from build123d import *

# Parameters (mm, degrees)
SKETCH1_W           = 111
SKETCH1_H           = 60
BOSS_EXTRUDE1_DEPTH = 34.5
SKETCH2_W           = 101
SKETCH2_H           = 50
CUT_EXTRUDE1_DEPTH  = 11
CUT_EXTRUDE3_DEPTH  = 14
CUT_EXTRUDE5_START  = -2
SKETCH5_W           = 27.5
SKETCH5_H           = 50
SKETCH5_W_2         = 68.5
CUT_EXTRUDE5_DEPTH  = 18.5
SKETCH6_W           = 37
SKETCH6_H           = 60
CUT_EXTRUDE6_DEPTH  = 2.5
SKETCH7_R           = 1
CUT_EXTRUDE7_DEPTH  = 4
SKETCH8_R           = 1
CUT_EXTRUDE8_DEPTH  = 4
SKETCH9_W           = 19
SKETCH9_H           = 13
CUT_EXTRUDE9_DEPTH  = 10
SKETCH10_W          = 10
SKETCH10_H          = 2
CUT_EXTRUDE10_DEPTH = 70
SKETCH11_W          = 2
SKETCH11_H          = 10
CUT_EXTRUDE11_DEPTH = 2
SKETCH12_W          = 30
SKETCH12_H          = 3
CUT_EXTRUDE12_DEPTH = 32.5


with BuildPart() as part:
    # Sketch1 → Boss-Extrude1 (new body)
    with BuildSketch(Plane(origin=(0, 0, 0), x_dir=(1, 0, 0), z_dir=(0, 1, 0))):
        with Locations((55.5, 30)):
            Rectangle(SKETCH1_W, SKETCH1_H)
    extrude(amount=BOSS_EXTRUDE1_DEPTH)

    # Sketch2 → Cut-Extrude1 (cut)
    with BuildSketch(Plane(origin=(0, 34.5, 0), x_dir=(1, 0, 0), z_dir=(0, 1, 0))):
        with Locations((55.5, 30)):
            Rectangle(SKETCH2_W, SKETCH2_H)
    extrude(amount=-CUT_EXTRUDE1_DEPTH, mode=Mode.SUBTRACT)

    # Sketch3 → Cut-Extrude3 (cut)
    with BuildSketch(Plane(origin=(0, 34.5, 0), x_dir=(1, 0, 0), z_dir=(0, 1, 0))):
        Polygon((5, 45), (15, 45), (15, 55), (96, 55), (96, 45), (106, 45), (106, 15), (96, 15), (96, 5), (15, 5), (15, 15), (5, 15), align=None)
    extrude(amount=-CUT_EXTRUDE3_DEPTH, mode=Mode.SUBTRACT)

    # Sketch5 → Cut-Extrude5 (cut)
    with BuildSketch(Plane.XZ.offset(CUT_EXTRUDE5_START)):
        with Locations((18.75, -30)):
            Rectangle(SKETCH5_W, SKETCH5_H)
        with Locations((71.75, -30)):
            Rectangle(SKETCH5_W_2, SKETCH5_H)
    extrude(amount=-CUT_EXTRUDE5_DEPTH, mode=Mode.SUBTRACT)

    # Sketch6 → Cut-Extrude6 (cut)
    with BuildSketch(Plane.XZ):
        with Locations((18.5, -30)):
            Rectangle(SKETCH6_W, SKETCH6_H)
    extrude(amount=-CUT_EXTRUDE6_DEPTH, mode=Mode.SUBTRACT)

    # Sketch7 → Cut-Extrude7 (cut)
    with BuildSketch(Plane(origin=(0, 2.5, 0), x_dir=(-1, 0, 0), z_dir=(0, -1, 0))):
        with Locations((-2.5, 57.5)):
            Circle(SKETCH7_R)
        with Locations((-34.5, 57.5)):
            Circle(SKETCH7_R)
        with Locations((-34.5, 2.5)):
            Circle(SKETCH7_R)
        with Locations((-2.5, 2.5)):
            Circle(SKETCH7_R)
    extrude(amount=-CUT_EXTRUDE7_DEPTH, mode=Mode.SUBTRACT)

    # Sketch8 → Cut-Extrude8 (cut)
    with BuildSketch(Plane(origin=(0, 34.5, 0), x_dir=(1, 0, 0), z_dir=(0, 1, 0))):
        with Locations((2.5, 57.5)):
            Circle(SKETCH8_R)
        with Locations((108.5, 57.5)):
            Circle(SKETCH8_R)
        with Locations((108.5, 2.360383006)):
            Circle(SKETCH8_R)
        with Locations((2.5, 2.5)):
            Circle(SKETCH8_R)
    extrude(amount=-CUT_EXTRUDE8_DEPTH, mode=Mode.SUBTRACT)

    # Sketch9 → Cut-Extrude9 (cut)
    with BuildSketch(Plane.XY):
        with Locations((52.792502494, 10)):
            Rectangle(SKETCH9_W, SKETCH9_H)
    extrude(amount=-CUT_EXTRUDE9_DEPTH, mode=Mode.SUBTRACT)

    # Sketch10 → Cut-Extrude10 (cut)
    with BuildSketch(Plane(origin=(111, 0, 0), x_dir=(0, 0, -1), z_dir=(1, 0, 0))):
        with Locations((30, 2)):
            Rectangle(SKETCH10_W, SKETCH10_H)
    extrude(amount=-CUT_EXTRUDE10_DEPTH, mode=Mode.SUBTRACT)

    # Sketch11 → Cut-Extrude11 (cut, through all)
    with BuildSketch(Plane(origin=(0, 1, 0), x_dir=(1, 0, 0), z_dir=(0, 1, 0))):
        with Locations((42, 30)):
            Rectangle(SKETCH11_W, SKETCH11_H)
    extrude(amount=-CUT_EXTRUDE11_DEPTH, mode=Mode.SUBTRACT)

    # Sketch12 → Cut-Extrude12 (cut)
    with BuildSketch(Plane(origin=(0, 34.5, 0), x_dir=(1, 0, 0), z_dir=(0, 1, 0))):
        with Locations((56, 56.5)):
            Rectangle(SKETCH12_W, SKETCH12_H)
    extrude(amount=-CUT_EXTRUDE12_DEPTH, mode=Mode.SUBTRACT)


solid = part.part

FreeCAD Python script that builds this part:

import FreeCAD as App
import Part
import Sketcher
from FreeCAD import Vector
Q = App.Units.Quantity


def add_polygon(sketch, points):
    """Adds a closed chain of lines whose ends are joined by coincident constraints."""
    first, n = sketch.GeometryCount, len(points)
    for a, b in zip(points, points[1:] + points[:1]):
        sketch.addGeometry(Part.LineSegment(App.Vector(*a, 0), App.Vector(*b, 0)), False)
    for i in range(n):
        sketch.addConstraint(Sketcher.Constraint("Coincident", first + i, 2, first + (i + 1) % n, 1))

doc = App.newDocument("Part")
params = doc.addObject("Spreadsheet::Sheet", "Params")
for row, (alias, value) in enumerate([
    ("sketch1_width", "111 mm"),
    ("sketch1_height", "60 mm"),
    ("pad1_length", "34.5 mm"),
    ("sketch2_width", "101 mm"),
    ("sketch2_height", "50 mm"),
    ("pocket1_length", "11 mm"),
    ("sketch3_width", "10 mm"),
    ("sketch3_width2", "81 mm"),
    ("sketch3_height", "30 mm"),
    ("pocket2_length", "14 mm"),
    ("sketch4_height", "50 mm"),
    ("sketch4_width", "27.5 mm"),
    ("sketch4_width2", "68.5 mm"),
    ("pocket3_length", "18.5 mm"),
    ("sketch5_width", "37 mm"),
    ("sketch5_height", "60 mm"),
    ("pocket4_length", "2.5 mm"),
    ("sketch6_diameter", "2 mm"),
    ("pocket5_length", "4 mm"),
    ("sketch7_diameter", "2 mm"),
    ("pocket6_length", "4 mm"),
    ("sketch8_width", "19 mm"),
    ("sketch8_height", "13 mm"),
    ("pocket7_length", "10 mm"),
    ("sketch9_width", "2 mm"),
    ("sketch9_height", "10 mm"),
    ("pocket8_length", "70 mm"),
    ("sketch10_width", "2 mm"),
    ("sketch10_height", "10 mm"),
    ("sketch11_width", "30 mm"),
    ("sketch11_height", "3 mm"),
    ("pocket10_length", "32.5 mm"),
], start=1):
    params.set(f"A{row}", alias)
    params.set(f"B{row}", "=" + value)
    params.setAlias(f"B{row}", alias)

body = doc.addObject("PartDesign::Body", "Body")

# Sketch on XZ plane
sketch1 = body.newObject("Sketcher::SketchObject", "Sketch")
sketch1.AttachmentSupport = (doc.getObject("XZ_Plane"), [""])
sketch1.MapMode = "FlatFace"
add_polygon(sketch1, [(0, -60), (0, 0), (111, 0), (111, -60)])  # lines 0-3
sketch1.addConstraint(Sketcher.Constraint("Vertical", 0))
sketch1.addConstraint(Sketcher.Constraint("Horizontal", 1))
sketch1.addConstraint(Sketcher.Constraint("Vertical", 2))
sketch1.addConstraint(Sketcher.Constraint("Horizontal", 3))
sketch1.addConstraint(Sketcher.Constraint("Coincident", 0, 2, -1, 1))
sketch1.addConstraint(Sketcher.Constraint("DistanceX", 1, 1, 1, 2, Q("111 mm")))
sketch1.addConstraint(Sketcher.Constraint("DistanceY", 0, 1, 0, 2, Q("60 mm")))
sketch1.setExpression("Constraints[9]", "Params.sketch1_width")
sketch1.setExpression("Constraints[10]", "Params.sketch1_height")
pad1 = body.newObject("PartDesign::Pad", "Pad")
pad1.Profile = sketch1
pad1.setExpression("Length", "Params.pad1_length")
pad1.Reversed = True

# Sketch on XZ plane
sketch2 = body.newObject("Sketcher::SketchObject", "Sketch001")
sketch2.AttachmentSupport = (doc.getObject("XZ_Plane"), [""])
sketch2.MapMode = "FlatFace"
sketch2.AttachmentOffset = App.Placement(Vector(0, 0, -34.5), App.Rotation())
add_polygon(sketch2, [(5, -55), (5, -5), (106, -5), (106, -55)])  # lines 0-3
sketch2.addConstraint(Sketcher.Constraint("Vertical", 0))
sketch2.addConstraint(Sketcher.Constraint("Horizontal", 1))
sketch2.addConstraint(Sketcher.Constraint("Vertical", 2))
sketch2.addConstraint(Sketcher.Constraint("Horizontal", 3))
sketch2.addConstraint(Sketcher.Constraint("DistanceX", 1, 1, 1, 2, Q("101 mm")))
sketch2.addConstraint(Sketcher.Constraint("DistanceY", 0, 1, 0, 2, Q("50 mm")))
sketch2.addConstraint(Sketcher.Constraint("DistanceX", -1, 1, 0, 2, Q("5 mm")))
sketch2.addConstraint(Sketcher.Constraint("DistanceY", 0, 2, -1, 1, Q("5 mm")))
sketch2.setExpression("Constraints[8]", "Params.sketch2_width")
sketch2.setExpression("Constraints[9]", "Params.sketch2_height")
pocket1 = body.newObject("PartDesign::Pocket", "Pocket")
pocket1.Profile = sketch2
pocket1.setExpression("Length", "Params.pocket1_length")
pocket1.Reversed = True

# Sketch on XZ plane
sketch3 = body.newObject("Sketcher::SketchObject", "Sketch002")
sketch3.AttachmentSupport = (doc.getObject("XZ_Plane"), [""])
sketch3.MapMode = "FlatFace"
sketch3.AttachmentOffset = App.Placement(Vector(0, 0, -34.5), App.Rotation())
add_polygon(sketch3, [(15, -45), (5, -45), (5, -15), (15, -15), (15, -5), (96, -5), (96, -15), (106, -15), (106, -45), (96, -45), (96, -55), (15, -55)])  # lines 0-11
sketch3.addConstraint(Sketcher.Constraint("Horizontal", 0))
sketch3.addConstraint(Sketcher.Constraint("Vertical", 1))
sketch3.addConstraint(Sketcher.Constraint("Horizontal", 2))
sketch3.addConstraint(Sketcher.Constraint("Vertical", 3))
sketch3.addConstraint(Sketcher.Constraint("Horizontal", 4))
sketch3.addConstraint(Sketcher.Constraint("Vertical", 5))
sketch3.addConstraint(Sketcher.Constraint("Horizontal", 6))
sketch3.addConstraint(Sketcher.Constraint("Vertical", 7))
sketch3.addConstraint(Sketcher.Constraint("Horizontal", 8))
sketch3.addConstraint(Sketcher.Constraint("Vertical", 9))
sketch3.addConstraint(Sketcher.Constraint("Horizontal", 10))
sketch3.addConstraint(Sketcher.Constraint("Vertical", 11))
sketch3.addConstraint(Sketcher.Constraint("Horizontal", 2, 2, 5, 2))
sketch3.addConstraint(Sketcher.Constraint("Horizontal", 0, 2, 7, 2))
sketch3.addConstraint(Sketcher.Constraint("Vertical", 5, 2, 8, 2))
sketch3.addConstraint(Sketcher.Constraint("Vertical", 3, 2, 10, 2))
sketch3.addConstraint(Sketcher.Constraint("Equal", 2, 6))
sketch3.addConstraint(Sketcher.Constraint("Equal", 8, 3))
sketch3.addConstraint(Sketcher.Constraint("Equal", 5, 9))
sketch3.addConstraint(Sketcher.Constraint("DistanceX", 0, 2, 0, 1, Q("10 mm")))
sketch3.addConstraint(Sketcher.Constraint("DistanceX", 4, 1, 4, 2, Q("81 mm")))
sketch3.addConstraint(Sketcher.Constraint("DistanceY", 1, 1, 1, 2, Q("30 mm")))
sketch3.addConstraint(Sketcher.Constraint("DistanceX", -1, 1, 0, 2, Q("5 mm")))
sketch3.addConstraint(Sketcher.Constraint("DistanceY", 0, 2, -1, 1, Q("45 mm")))
sketch3.setExpression("Constraints[31]", "Params.sketch3_width")
sketch3.setExpression("Constraints[32]", "Params.sketch3_width2")
sketch3.setExpression("Constraints[33]", "Params.sketch3_height")
pocket2 = body.newObject("PartDesign::Pocket", "Pocket001")
pocket2.Profile = sketch3
pocket2.setExpression("Length", "Params.pocket2_length")
pocket2.Reversed = True

# Sketch on XZ plane
sketch4 = body.newObject("Sketcher::SketchObject", "Sketch003")
sketch4.AttachmentSupport = (doc.getObject("XZ_Plane"), [""])
sketch4.MapMode = "FlatFace"
sketch4.AttachmentOffset = App.Placement(Vector(0, 0, -2), App.Rotation())
add_polygon(sketch4, [(5, -5), (5, -55), (32, -55), (32, -5)])  # lines 0-3
add_polygon(sketch4, [(38, -5), (38, -55), (106, -55), (106, -5)])  # lines 4-7
sketch4.addConstraint(Sketcher.Constraint("Vertical", 0))
sketch4.addConstraint(Sketcher.Constraint("Horizontal", 1))
sketch4.addConstraint(Sketcher.Constraint("Vertical", 2))
sketch4.addConstraint(Sketcher.Constraint("Horizontal", 3))
sketch4.addConstraint(Sketcher.Constraint("Vertical", 4))
sketch4.addConstraint(Sketcher.Constraint("Horizontal", 5))
sketch4.addConstraint(Sketcher.Constraint("Vertical", 6))
sketch4.addConstraint(Sketcher.Constraint("Horizontal", 7))
sketch4.addConstraint(Sketcher.Constraint("Horizontal", 1, 2, 4, 2))
sketch4.addConstraint(Sketcher.Constraint("Horizontal", 3, 2, 6, 2))
sketch4.addConstraint(Sketcher.Constraint("DistanceY", 0, 2, 0, 1, Q("50 mm")))
sketch4.addConstraint(Sketcher.Constraint("DistanceX", 1, 1, 1, 2, Q("27.5 mm")))
sketch4.addConstraint(Sketcher.Constraint("DistanceX", 5, 1, 5, 2, Q("68.5 mm")))
sketch4.addConstraint(Sketcher.Constraint("DistanceX", -1, 1, 0, 2, Q("5 mm")))
sketch4.addConstraint(Sketcher.Constraint("DistanceY", 0, 2, -1, 1, Q("55 mm")))
sketch4.addConstraint(Sketcher.Constraint("DistanceX", -1, 1, 5, 2, Q("106 mm")))
sketch4.setExpression("Constraints[18]", "Params.sketch4_height")
sketch4.setExpression("Constraints[19]", "Params.sketch4_width")
sketch4.setExpression("Constraints[20]", "Params.sketch4_width2")
pocket3 = body.newObject("PartDesign::Pocket", "Pocket002")
pocket3.Profile = sketch4
pocket3.setExpression("Length", "Params.pocket3_length")

# Sketch on XZ plane
sketch5 = body.newObject("Sketcher::SketchObject", "Sketch004")
sketch5.AttachmentSupport = (doc.getObject("XZ_Plane"), [""])
sketch5.MapMode = "FlatFace"
add_polygon(sketch5, [(0, 0), (0, -60), (37, -60), (37, 0)])  # lines 0-3
sketch5.addConstraint(Sketcher.Constraint("Vertical", 0))
sketch5.addConstraint(Sketcher.Constraint("Horizontal", 1))
sketch5.addConstraint(Sketcher.Constraint("Vertical", 2))
sketch5.addConstraint(Sketcher.Constraint("Horizontal", 3))
sketch5.addConstraint(Sketcher.Constraint("Coincident", 3, 2, -1, 1))
sketch5.addConstraint(Sketcher.Constraint("DistanceX", 1, 1, 1, 2, Q("37 mm")))
sketch5.addConstraint(Sketcher.Constraint("DistanceY", 0, 2, 0, 1, Q("60 mm")))
sketch5.setExpression("Constraints[9]", "Params.sketch5_width")
sketch5.setExpression("Constraints[10]", "Params.sketch5_height")
pocket4 = body.newObject("PartDesign::Pocket", "Pocket003")
pocket4.Profile = sketch5
pocket4.setExpression("Length", "Params.pocket4_length")

# Sketch on XZ plane
sketch6 = body.newObject("Sketcher::SketchObject", "Sketch005")
sketch6.AttachmentSupport = (doc.getObject("XZ_Plane"), [""])
sketch6.MapMode = "FlatFace"
sketch6.AttachmentOffset = App.Placement(Vector(0, 0, -2.5), App.Rotation())
sketch6.addGeometry(Part.Circle(Vector(2.5, -57.5, 0), Vector(0, 0, 1), 1), False)
sketch6.addGeometry(Part.Circle(Vector(34.5, -57.5, 0), Vector(0, 0, 1), 1), False)
sketch6.addGeometry(Part.Circle(Vector(34.5, -2.5, 0), Vector(0, 0, 1), 1), False)
sketch6.addGeometry(Part.Circle(Vector(2.5, -2.5, 0), Vector(0, 0, 1), 1), False)
sketch6.addConstraint(Sketcher.Constraint("Equal", 0, 1))
sketch6.addConstraint(Sketcher.Constraint("Equal", 1, 2))
sketch6.addConstraint(Sketcher.Constraint("Equal", 2, 3))
sketch6.addConstraint(Sketcher.Constraint("Horizontal", 0, 3, 1, 3))
sketch6.addConstraint(Sketcher.Constraint("Horizontal", 2, 3, 3, 3))
sketch6.addConstraint(Sketcher.Constraint("Vertical", 1, 3, 2, 3))
sketch6.addConstraint(Sketcher.Constraint("Vertical", 0, 3, 3, 3))
sketch6.addConstraint(Sketcher.Constraint("Diameter", 0, Q("2 mm")))
sketch6.addConstraint(Sketcher.Constraint("DistanceX", 0, 3, 1, 3, Q("32 mm")))
sketch6.addConstraint(Sketcher.Constraint("DistanceY", 1, 3, 2, 3, Q("55 mm")))
sketch6.addConstraint(Sketcher.Constraint("DistanceX", -1, 1, 0, 3, Q("2.5 mm")))
sketch6.addConstraint(Sketcher.Constraint("DistanceY", 0, 3, -1, 1, Q("57.5 mm")))
sketch6.setExpression("Constraints[7]", "Params.sketch6_diameter")
pocket5 = body.newObject("PartDesign::Pocket", "Pocket004")
pocket5.Profile = sketch6
pocket5.setExpression("Length", "Params.pocket5_length")

# Sketch on XZ plane
sketch7 = body.newObject("Sketcher::SketchObject", "Sketch006")
sketch7.AttachmentSupport = (doc.getObject("XZ_Plane"), [""])
sketch7.MapMode = "FlatFace"
sketch7.AttachmentOffset = App.Placement(Vector(0, 0, -34.5), App.Rotation())
sketch7.addGeometry(Part.Circle(Vector(2.5, -57.5, 0), Vector(0, 0, 1), 1), False)
sketch7.addGeometry(Part.Circle(Vector(108.5, -57.5, 0), Vector(0, 0, 1), 1), False)
sketch7.addGeometry(Part.Circle(Vector(108.5, -2.4, 0), Vector(0, 0, 1), 1), False)
sketch7.addGeometry(Part.Circle(Vector(2.5, -2.5, 0), Vector(0, 0, 1), 1), False)
sketch7.addConstraint(Sketcher.Constraint("Equal", 0, 1))
sketch7.addConstraint(Sketcher.Constraint("Equal", 1, 2))
sketch7.addConstraint(Sketcher.Constraint("Equal", 2, 3))
sketch7.addConstraint(Sketcher.Constraint("Horizontal", 0, 3, 1, 3))
sketch7.addConstraint(Sketcher.Constraint("Vertical", 1, 3, 2, 3))
sketch7.addConstraint(Sketcher.Constraint("Vertical", 0, 3, 3, 3))
sketch7.addConstraint(Sketcher.Constraint("Diameter", 0, Q("2 mm")))
sketch7.addConstraint(Sketcher.Constraint("DistanceX", 0, 3, 1, 3, Q("106 mm")))
sketch7.addConstraint(Sketcher.Constraint("DistanceY", 0, 3, 3, 3, Q("55 mm")))
sketch7.addConstraint(Sketcher.Constraint("DistanceX", -1, 1, 0, 3, Q("2.5 mm")))
sketch7.addConstraint(Sketcher.Constraint("DistanceY", 0, 3, -1, 1, Q("57.5 mm")))
sketch7.addConstraint(Sketcher.Constraint("DistanceY", 2, 3, -1, 1, Q("2.360383 mm")))
sketch7.setExpression("Constraints[6]", "Params.sketch7_diameter")
pocket6 = body.newObject("PartDesign::Pocket", "Pocket005")
pocket6.Profile = sketch7
pocket6.setExpression("Length", "Params.pocket6_length")
pocket6.Reversed = True

# Sketch on XY plane
sketch8 = body.newObject("Sketcher::SketchObject", "Sketch007")
sketch8.AttachmentSupport = (doc.getObject("XY_Plane"), [""])
sketch8.MapMode = "FlatFace"
add_polygon(sketch8, [(43, 16), (43, 4), (62, 4), (62, 16)])  # lines 0-3
sketch8.addConstraint(Sketcher.Constraint("Vertical", 0))
sketch8.addConstraint(Sketcher.Constraint("Horizontal", 1))
sketch8.addConstraint(Sketcher.Constraint("Vertical", 2))
sketch8.addConstraint(Sketcher.Constraint("Horizontal", 3))
sketch8.addConstraint(Sketcher.Constraint("DistanceX", 1, 1, 1, 2, Q("19 mm")))
sketch8.addConstraint(Sketcher.Constraint("DistanceY", 0, 2, 0, 1, Q("13 mm")))
sketch8.addConstraint(Sketcher.Constraint("DistanceY", -1, 1, 0, 2, Q("3.5 mm")))
sketch8.addConstraint(Sketcher.Constraint("DistanceX", -1, 1, 0, 2, Q("43.292502 mm")))
sketch8.setExpression("Constraints[8]", "Params.sketch8_width")
sketch8.setExpression("Constraints[9]", "Params.sketch8_height")
pocket7 = body.newObject("PartDesign::Pocket", "Pocket006")
pocket7.Profile = sketch8
pocket7.setExpression("Length", "Params.pocket7_length")

# Sketch on YZ plane
sketch9 = body.newObject("Sketcher::SketchObject", "Sketch008")
sketch9.AttachmentSupport = (doc.getObject("YZ_Plane"), [""])
sketch9.MapMode = "FlatFace"
sketch9.AttachmentOffset = App.Placement(Vector(0, 0, 111), App.Rotation())
add_polygon(sketch9, [(3, -25), (1, -25), (1, -35), (3, -35)])  # lines 0-3
sketch9.addConstraint(Sketcher.Constraint("Horizontal", 0))
sketch9.addConstraint(Sketcher.Constraint("Vertical", 1))
sketch9.addConstraint(Sketcher.Constraint("Horizontal", 2))
sketch9.addConstraint(Sketcher.Constraint("Vertical", 3))
sketch9.addConstraint(Sketcher.Constraint("DistanceX", 0, 2, 0, 1, Q("2 mm")))
sketch9.addConstraint(Sketcher.Constraint("DistanceY", 1, 2, 1, 1, Q("10 mm")))
sketch9.addConstraint(Sketcher.Constraint("DistanceX", -1, 1, 0, 2, Q("1 mm")))
sketch9.addConstraint(Sketcher.Constraint("DistanceY", 0, 2, -1, 1, Q("25 mm")))
sketch9.setExpression("Constraints[8]", "Params.sketch9_width")
sketch9.setExpression("Constraints[9]", "Params.sketch9_height")
pocket8 = body.newObject("PartDesign::Pocket", "Pocket007")
pocket8.Profile = sketch9
pocket8.setExpression("Length", "Params.pocket8_length")

# Sketch on XZ plane
sketch10 = body.newObject("Sketcher::SketchObject", "Sketch009")
sketch10.AttachmentSupport = (doc.getObject("XZ_Plane"), [""])
sketch10.MapMode = "FlatFace"
sketch10.AttachmentOffset = App.Placement(Vector(0, 0, -1), App.Rotation())
add_polygon(sketch10, [(41, -35), (41, -25), (43, -25), (43, -35)])  # lines 0-3
sketch10.addConstraint(Sketcher.Constraint("Vertical", 0))
sketch10.addConstraint(Sketcher.Constraint("Horizontal", 1))
sketch10.addConstraint(Sketcher.Constraint("Vertical", 2))
sketch10.addConstraint(Sketcher.Constraint("Horizontal", 3))
sketch10.addConstraint(Sketcher.Constraint("DistanceX", 1, 1, 1, 2, Q("2 mm")))
sketch10.addConstraint(Sketcher.Constraint("DistanceY", 0, 1, 0, 2, Q("10 mm")))
sketch10.addConstraint(Sketcher.Constraint("DistanceX", -1, 1, 0, 2, Q("41 mm")))
sketch10.addConstraint(Sketcher.Constraint("DistanceY", 0, 2, -1, 1, Q("25 mm")))
sketch10.setExpression("Constraints[8]", "Params.sketch10_width")
sketch10.setExpression("Constraints[9]", "Params.sketch10_height")
pocket9 = body.newObject("PartDesign::Pocket", "Pocket008")
pocket9.Profile = sketch10
pocket9.Type = "ThroughAll"
pocket9.Reversed = True

# Sketch on XZ plane
sketch11 = body.newObject("Sketcher::SketchObject", "Sketch010")
sketch11.AttachmentSupport = (doc.getObject("XZ_Plane"), [""])
sketch11.MapMode = "FlatFace"
sketch11.AttachmentOffset = App.Placement(Vector(0, 0, -34.5), App.Rotation())
add_polygon(sketch11, [(41, -58), (41, -55), (71, -55), (71, -58)])  # lines 0-3
sketch11.addConstraint(Sketcher.Constraint("Vertical", 0))
sketch11.addConstraint(Sketcher.Constraint("Horizontal", 1))
sketch11.addConstraint(Sketcher.Constraint("Vertical", 2))
sketch11.addConstraint(Sketcher.Constraint("Horizontal", 3))
sketch11.addConstraint(Sketcher.Constraint("DistanceX", 1, 1, 1, 2, Q("30 mm")))
sketch11.addConstraint(Sketcher.Constraint("DistanceY", 0, 1, 0, 2, Q("3 mm")))
sketch11.addConstraint(Sketcher.Constraint("DistanceX", -1, 1, 0, 2, Q("41 mm")))
sketch11.addConstraint(Sketcher.Constraint("DistanceY", 0, 2, -1, 1, Q("55 mm")))
sketch11.setExpression("Constraints[8]", "Params.sketch11_width")
sketch11.setExpression("Constraints[9]", "Params.sketch11_height")
pocket10 = body.newObject("PartDesign::Pocket", "Pocket009")
pocket10.Profile = sketch11
pocket10.setExpression("Length", "Params.pocket10_length")
pocket10.Reversed = True

doc.recompute()
